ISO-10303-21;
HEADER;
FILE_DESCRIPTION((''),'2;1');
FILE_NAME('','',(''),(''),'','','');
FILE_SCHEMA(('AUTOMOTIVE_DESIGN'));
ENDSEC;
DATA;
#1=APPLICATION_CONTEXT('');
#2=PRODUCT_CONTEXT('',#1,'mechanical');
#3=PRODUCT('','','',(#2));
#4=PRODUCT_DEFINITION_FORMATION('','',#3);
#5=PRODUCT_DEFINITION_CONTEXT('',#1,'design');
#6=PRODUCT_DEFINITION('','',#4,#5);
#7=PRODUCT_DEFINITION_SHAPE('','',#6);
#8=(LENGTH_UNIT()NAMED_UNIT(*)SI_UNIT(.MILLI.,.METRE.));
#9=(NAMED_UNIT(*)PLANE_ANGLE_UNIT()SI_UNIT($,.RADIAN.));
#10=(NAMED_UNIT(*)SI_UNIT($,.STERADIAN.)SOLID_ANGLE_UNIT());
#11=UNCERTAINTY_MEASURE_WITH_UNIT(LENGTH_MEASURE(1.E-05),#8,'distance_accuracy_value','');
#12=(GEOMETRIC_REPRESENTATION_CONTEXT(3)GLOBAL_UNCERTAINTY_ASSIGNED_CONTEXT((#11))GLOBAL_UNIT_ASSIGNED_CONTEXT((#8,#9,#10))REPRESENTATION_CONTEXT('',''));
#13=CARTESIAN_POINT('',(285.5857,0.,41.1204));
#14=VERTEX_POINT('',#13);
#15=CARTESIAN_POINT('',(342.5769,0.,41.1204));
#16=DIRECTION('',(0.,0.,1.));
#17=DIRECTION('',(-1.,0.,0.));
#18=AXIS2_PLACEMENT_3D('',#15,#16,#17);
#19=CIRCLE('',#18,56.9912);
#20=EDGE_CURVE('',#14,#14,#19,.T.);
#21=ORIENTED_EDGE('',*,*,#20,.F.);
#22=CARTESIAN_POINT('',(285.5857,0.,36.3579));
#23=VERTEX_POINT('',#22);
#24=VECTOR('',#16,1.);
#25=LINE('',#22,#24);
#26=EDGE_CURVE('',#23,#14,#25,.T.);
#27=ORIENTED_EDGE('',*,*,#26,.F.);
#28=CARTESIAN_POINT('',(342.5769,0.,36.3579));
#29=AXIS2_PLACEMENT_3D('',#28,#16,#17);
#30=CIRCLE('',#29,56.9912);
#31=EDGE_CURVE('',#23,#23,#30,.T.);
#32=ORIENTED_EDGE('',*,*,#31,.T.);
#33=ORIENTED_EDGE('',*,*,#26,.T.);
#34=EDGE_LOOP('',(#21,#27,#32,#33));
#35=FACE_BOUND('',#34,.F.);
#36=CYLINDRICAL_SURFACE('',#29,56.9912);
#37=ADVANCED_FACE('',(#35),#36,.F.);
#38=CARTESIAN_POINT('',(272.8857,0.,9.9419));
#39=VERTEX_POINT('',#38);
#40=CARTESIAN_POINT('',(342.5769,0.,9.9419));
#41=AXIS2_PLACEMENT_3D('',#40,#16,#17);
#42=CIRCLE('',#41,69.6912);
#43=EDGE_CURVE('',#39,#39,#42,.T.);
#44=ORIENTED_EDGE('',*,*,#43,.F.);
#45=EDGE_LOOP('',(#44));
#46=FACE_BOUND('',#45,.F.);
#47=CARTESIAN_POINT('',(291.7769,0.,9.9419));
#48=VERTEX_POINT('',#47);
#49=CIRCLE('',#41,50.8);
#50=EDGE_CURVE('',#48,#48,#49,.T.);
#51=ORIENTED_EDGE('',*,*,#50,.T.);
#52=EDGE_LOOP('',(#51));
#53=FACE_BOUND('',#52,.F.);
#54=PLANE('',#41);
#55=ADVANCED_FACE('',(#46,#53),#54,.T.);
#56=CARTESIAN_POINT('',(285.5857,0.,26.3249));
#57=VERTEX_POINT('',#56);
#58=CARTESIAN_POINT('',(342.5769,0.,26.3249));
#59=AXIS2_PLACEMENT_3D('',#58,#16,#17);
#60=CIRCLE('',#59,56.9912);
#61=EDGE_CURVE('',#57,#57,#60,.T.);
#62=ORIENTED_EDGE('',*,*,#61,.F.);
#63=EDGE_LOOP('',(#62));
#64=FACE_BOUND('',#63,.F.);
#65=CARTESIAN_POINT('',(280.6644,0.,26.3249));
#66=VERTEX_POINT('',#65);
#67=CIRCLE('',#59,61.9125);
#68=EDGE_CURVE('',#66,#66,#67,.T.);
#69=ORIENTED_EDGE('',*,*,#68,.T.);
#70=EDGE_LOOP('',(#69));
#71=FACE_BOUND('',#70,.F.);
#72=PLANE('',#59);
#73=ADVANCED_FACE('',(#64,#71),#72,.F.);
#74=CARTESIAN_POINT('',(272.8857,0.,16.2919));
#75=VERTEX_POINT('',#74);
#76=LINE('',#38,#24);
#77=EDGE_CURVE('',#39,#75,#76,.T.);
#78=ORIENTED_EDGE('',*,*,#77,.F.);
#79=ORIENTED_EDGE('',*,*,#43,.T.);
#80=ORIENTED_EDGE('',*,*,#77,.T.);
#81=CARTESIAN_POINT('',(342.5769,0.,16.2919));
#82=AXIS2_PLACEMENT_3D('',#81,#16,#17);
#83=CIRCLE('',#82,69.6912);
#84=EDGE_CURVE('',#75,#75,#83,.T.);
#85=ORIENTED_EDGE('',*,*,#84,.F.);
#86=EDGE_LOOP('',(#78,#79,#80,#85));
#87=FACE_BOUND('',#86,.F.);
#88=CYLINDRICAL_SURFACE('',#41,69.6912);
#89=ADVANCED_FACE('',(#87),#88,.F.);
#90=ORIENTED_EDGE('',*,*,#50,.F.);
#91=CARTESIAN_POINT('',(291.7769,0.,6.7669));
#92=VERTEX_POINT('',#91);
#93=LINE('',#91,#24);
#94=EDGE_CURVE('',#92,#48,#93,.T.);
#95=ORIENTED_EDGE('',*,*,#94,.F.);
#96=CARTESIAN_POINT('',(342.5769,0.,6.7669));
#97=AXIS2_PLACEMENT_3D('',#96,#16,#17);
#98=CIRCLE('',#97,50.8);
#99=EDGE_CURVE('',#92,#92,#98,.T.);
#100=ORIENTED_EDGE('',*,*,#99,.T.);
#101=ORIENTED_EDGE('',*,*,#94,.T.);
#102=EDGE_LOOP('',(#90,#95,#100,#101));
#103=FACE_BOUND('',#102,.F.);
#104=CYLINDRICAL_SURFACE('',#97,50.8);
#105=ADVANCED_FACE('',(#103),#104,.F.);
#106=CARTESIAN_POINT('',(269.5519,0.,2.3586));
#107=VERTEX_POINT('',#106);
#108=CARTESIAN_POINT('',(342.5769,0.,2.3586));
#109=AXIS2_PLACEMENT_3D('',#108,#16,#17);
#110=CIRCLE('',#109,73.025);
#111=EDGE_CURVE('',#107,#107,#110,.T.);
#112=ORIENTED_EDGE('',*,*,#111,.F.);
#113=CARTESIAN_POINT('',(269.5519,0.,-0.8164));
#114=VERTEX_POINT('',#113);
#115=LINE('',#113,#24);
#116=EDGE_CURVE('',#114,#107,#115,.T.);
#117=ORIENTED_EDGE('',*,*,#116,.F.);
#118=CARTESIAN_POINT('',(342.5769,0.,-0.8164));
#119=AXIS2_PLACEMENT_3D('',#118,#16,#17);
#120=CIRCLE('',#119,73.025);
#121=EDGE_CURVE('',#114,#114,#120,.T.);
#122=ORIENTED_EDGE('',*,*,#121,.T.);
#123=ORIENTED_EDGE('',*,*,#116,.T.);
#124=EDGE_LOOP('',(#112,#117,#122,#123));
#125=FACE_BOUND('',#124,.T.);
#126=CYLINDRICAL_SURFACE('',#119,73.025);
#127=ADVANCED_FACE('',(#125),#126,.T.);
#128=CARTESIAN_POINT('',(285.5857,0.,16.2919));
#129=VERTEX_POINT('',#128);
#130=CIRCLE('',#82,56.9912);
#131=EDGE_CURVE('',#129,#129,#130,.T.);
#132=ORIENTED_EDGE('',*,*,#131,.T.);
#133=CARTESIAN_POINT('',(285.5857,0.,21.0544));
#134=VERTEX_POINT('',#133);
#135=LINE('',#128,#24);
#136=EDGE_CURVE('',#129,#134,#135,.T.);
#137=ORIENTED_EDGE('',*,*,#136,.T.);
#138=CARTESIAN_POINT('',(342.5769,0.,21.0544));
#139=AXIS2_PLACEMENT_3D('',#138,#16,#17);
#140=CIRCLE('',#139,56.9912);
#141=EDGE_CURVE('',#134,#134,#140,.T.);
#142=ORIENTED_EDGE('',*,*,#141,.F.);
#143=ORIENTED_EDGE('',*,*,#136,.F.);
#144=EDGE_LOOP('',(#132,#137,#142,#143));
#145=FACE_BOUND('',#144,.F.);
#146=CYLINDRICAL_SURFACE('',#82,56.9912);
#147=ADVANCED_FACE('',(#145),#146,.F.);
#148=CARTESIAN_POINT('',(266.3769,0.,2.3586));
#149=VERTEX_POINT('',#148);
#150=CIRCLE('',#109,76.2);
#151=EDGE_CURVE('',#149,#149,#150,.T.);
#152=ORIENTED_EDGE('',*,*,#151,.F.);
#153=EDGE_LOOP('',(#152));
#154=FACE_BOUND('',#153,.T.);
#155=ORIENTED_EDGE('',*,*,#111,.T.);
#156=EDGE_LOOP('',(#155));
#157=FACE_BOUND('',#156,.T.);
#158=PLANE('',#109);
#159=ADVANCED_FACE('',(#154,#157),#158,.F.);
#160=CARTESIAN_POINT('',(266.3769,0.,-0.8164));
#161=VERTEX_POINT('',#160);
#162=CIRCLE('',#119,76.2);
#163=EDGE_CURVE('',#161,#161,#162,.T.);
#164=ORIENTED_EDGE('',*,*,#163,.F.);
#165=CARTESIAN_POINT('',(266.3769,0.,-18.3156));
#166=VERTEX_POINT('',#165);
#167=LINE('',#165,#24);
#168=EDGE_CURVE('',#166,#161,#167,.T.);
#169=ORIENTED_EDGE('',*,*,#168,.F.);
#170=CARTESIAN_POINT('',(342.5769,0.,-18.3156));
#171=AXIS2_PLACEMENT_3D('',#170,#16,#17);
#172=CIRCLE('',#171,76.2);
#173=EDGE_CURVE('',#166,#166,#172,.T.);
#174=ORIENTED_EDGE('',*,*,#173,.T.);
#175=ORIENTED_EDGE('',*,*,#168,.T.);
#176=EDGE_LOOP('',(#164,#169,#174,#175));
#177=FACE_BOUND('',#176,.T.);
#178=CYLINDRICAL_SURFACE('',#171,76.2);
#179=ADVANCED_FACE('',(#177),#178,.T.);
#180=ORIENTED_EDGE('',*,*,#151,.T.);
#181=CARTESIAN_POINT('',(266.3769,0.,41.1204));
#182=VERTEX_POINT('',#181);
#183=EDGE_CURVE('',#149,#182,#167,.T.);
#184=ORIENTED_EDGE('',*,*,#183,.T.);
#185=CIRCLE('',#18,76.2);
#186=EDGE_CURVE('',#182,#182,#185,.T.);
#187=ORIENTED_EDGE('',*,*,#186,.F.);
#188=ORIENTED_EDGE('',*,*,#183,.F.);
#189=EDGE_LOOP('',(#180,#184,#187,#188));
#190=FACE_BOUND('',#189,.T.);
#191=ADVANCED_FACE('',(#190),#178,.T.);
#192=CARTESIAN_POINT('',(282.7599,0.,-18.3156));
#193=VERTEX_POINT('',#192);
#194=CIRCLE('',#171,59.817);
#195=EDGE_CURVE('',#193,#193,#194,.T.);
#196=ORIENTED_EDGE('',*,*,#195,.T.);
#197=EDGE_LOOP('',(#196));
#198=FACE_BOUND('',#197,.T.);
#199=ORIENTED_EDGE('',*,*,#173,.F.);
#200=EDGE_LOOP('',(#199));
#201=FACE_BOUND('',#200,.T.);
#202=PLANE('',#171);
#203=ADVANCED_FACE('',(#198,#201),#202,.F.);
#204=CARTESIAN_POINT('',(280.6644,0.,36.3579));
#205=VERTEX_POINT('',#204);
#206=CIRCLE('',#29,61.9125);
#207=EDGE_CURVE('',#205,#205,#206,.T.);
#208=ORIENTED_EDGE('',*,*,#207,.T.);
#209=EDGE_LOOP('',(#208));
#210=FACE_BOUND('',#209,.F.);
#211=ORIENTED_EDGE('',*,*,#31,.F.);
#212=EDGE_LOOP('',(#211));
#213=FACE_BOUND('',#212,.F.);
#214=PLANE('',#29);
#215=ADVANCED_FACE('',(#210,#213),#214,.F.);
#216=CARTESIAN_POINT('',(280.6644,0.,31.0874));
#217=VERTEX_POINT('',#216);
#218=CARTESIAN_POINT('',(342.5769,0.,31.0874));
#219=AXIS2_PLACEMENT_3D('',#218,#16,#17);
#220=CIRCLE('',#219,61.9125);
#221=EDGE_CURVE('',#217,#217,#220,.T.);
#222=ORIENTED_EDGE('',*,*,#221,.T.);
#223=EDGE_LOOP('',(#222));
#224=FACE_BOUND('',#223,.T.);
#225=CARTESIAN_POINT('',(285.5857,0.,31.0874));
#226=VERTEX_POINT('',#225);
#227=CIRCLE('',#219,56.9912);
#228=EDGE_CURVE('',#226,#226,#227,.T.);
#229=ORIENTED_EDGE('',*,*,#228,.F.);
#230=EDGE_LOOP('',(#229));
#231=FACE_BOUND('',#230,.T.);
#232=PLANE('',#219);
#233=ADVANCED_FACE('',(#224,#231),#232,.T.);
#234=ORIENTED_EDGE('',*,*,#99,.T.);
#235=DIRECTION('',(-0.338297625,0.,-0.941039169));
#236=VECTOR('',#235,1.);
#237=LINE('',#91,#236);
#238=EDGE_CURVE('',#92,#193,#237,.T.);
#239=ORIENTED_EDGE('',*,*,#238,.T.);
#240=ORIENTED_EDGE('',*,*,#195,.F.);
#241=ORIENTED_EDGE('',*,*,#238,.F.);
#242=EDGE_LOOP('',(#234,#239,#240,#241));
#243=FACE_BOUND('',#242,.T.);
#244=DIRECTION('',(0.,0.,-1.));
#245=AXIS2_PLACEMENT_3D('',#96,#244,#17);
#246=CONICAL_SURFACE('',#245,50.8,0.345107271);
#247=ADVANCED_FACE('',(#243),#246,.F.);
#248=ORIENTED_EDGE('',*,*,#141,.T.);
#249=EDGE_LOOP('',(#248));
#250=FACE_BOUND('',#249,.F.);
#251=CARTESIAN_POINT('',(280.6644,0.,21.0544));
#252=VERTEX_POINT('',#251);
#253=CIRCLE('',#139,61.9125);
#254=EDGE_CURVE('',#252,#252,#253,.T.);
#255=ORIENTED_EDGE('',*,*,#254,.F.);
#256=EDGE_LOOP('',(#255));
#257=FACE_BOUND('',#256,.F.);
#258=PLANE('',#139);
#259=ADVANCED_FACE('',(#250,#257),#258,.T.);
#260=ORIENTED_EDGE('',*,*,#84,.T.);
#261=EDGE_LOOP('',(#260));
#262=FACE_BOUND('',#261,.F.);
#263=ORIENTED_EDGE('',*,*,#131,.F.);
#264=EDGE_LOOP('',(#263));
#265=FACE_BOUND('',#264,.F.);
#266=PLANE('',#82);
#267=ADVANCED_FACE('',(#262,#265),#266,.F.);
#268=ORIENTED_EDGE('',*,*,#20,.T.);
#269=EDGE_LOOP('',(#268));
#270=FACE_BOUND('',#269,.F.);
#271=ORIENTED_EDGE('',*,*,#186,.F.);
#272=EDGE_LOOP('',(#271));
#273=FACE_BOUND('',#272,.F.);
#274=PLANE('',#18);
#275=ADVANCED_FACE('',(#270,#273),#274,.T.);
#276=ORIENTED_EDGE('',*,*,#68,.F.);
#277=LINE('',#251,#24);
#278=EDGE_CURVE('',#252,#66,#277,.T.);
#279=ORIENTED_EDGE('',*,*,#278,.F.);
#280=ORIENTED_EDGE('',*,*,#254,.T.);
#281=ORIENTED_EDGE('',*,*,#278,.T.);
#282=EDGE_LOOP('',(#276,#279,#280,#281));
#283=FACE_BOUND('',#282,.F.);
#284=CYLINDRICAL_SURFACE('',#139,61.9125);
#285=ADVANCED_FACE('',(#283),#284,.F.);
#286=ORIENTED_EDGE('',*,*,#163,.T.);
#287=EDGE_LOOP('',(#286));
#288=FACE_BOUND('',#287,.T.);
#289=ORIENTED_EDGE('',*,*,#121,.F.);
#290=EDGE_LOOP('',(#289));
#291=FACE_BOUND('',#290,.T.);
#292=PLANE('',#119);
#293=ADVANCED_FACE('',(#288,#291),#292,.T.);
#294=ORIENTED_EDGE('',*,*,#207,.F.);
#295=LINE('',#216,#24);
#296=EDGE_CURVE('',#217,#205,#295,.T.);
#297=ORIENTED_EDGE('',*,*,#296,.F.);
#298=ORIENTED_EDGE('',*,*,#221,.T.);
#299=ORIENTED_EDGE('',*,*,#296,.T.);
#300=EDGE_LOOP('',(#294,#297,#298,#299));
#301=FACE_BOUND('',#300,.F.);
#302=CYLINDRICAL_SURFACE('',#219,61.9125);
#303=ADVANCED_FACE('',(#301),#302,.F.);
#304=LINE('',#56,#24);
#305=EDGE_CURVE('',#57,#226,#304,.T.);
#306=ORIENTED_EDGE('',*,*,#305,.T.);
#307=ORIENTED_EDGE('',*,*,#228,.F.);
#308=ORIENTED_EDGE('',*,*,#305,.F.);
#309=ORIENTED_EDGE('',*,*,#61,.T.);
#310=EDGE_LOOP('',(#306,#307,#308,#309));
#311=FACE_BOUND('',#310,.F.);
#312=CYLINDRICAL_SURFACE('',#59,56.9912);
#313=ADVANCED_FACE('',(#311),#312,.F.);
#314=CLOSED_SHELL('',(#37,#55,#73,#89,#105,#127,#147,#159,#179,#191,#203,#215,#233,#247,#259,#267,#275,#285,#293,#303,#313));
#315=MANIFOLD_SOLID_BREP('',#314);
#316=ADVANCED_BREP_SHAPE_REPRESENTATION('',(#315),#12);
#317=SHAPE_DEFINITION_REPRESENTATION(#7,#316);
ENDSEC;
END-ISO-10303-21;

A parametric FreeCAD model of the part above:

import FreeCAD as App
import Part
import Sketcher

V = App.Vector
Q = App.Units.Quantity

doc = App.newDocument("Part")
body = doc.addObject("PartDesign::Body", "Body")

sketch1 = body.newObject("Sketcher::SketchObject", "Sketch")
sketch1.AttachmentSupport = (doc.getObject("XZ_Plane"), [""])
sketch1.MapMode = "FlatFace"
sketch1.addGeometry([
    Part.LineSegment(V(285.6, 16.3, 0), V(272.9, 16.3, 0)),
    Part.LineSegment(V(272.9, 16.3, 0), V(272.9, 9.9, 0)),
    Part.LineSegment(V(272.9, 9.9, 0), V(291.8, 9.9, 0)),
    Part.LineSegment(V(291.8, 9.9, 0), V(291.8, 6.8, 0)),
    Part.LineSegment(V(291.8, 6.8, 0), V(282.8, -18.3, 0)),
    Part.LineSegment(V(282.8, -18.3, 0), V(266.4, -18.3, 0)),
    Part.LineSegment(V(266.4, -18.3, 0), V(266.4, -0.8, 0)),
    Part.LineSegment(V(266.4, -0.8, 0), V(269.6, -0.8, 0)),
    Part.LineSegment(V(269.6, -0.8, 0), V(269.6, 2.4, 0)),
    Part.LineSegment(V(269.6, 2.4, 0), V(266.4, 2.4, 0)),
    Part.LineSegment(V(266.4, 2.4, 0), V(266.4, 41.1, 0)),
    Part.LineSegment(V(266.4, 41.1, 0), V(285.6, 41.1, 0)),
    Part.LineSegment(V(285.6, 41.1, 0), V(285.6, 36.4, 0)),
    Part.LineSegment(V(285.6, 36.4, 0), V(280.7, 36.4, 0)),
    Part.LineSegment(V(280.7, 36.4, 0), V(280.7, 31.1, 0)),
    Part.LineSegment(V(280.7, 31.1, 0), V(285.6, 31.1, 0)),
    Part.LineSegment(V(285.6, 31.1, 0), V(285.6, 26.3, 0)),
    Part.LineSegment(V(285.6, 26.3, 0), V(280.7, 26.3, 0)),
    Part.LineSegment(V(280.7, 26.3, 0), V(280.7, 21.1, 0)),
    Part.LineSegment(V(280.7, 21.1, 0), V(285.6, 21.1, 0)),
    Part.LineSegment(V(285.6, 21.1, 0), V(285.6, 16.3, 0)),
], False)
sketch1.addGeometry(Part.LineSegment(V(342.6, -18.3, 0), V(342.6, 41.1, 0)), True)
sketch1.addConstraint([
    Sketcher.Constraint("Coincident", 0, 2, 1, 1),
    Sketcher.Constraint("Coincident", 1, 2, 2, 1),
    Sketcher.Constraint("Coincident", 2, 2, 3, 1),
    Sketcher.Constraint("Coincident", 3, 2, 4, 1),
    Sketcher.Constraint("Coincident", 4, 2, 5, 1),
    Sketcher.Constraint("Coincident", 5, 2, 6, 1),
    Sketcher.Constraint("Coincident", 6, 2, 7, 1),
    Sketcher.Constraint("Coincident", 7, 2, 8, 1),
    Sketcher.Constraint("Coincident", 8, 2, 9, 1),
    Sketcher.Constraint("Coincident", 9, 2, 10, 1),
    Sketcher.Constraint("Coincident", 10, 2, 11, 1),
    Sketcher.Constraint("Coincident", 11, 2, 12, 1),
    Sketcher.Constraint("Coincident", 12, 2, 13, 1),
    Sketcher.Constraint("Coincident", 13, 2, 14, 1),
    Sketcher.Constraint("Coincident", 14, 2, 15, 1),
    Sketcher.Constraint("Coincident", 15, 2, 16, 1),
    Sketcher.Constraint("Coincident", 16, 2, 17, 1),
    Sketcher.Constraint("Coincident", 17, 2, 18, 1),
    Sketcher.Constraint("Coincident", 18, 2, 19, 1),
    Sketcher.Constraint("Coincident", 19, 2, 20, 1),
    Sketcher.Constraint("Coincident", 20, 2, 0, 1),
    Sketcher.Constraint("Horizontal", 0),
    Sketcher.Constraint("Vertical", 1),
    Sketcher.Constraint("Horizontal", 2),
    Sketcher.Constraint("Vertical", 3),
    Sketcher.Constraint("Horizontal", 5),
    Sketcher.Constraint("Vertical", 6),
    Sketcher.Constraint("Horizontal", 7),
    Sketcher.Constraint("Vertical", 8),
    Sketcher.Constraint("Horizontal", 9),
    Sketcher.Constraint("Vertical", 10),
    Sketcher.Constraint("Horizontal", 11),
    Sketcher.Constraint("Vertical", 12),
    Sketcher.Constraint("Horizontal", 13),
    Sketcher.Constraint("Vertical", 14),
    Sketcher.Constraint("Horizontal", 15),
    Sketcher.Constraint("Vertical", 16),
    Sketcher.Constraint("Horizontal", 17),
    Sketcher.Constraint("Vertical", 18),
    Sketcher.Constraint("Horizontal", 19),
    Sketcher.Constraint("Vertical", 20),
    Sketcher.Constraint("Vertical", 21),
    Sketcher.Constraint("Horizontal", 5, 2, 21, 1),
    Sketcher.Constraint("Horizontal", 11, 2, 21, 2),
    Sketcher.Constraint("Vertical", 6, 2, 9, 2),
    Sketcher.Constraint("Vertical", 12, 2, 15, 2),
    Sketcher.Constraint("Vertical", 14, 2, 17, 2),
    Sketcher.Constraint("Vertical", 16, 2, 19, 2),
    Sketcher.Constraint("Equal", 9, 3),
    Sketcher.Constraint("Equal", 3, 8),
    Sketcher.Constraint("Equal", 12, 16),
    Sketcher.Constraint("Equal", 14, 18),
    Sketcher.Constraint("Equal", 16, 20),
    Sketcher.Constraint("DistanceX", 0, 2, 0, 1, Q("0.5 in")),
    Sketcher.Constraint("DistanceX", 3, 2, 21, 1, Q("2 in")),
    Sketcher.Constraint("DistanceY", 1, 2, 1, 1, Q("0.25 in")),
    Sketcher.Constraint("DistanceX", 7, 1, 7, 2, Q("0.125 in")),
    Sketcher.Constraint("DistanceY", 12, 2, 12, 1, Q("0.1875 in")),
    Sketcher.Constraint("DistanceX", 4, 2, 3, 2, Q("0.355 in")),
    Sketcher.Constraint("DistanceX", 5, 2, 3, 2, Q("1 in")),
    Sketcher.Constraint("DistanceY", 6, 1, 6, 2, Q("17.4992 mm")),
    Sketcher.Constraint("DistanceY", 21, 1, 21, 2, Q("2.34 in")),
    Sketcher.Constraint("DistanceY", 4, 2, 2, 2, Q("1.1125 in")),
    Sketcher.Constraint("DistanceX", 20, 2, 21, 1, Q("56.9912 mm")),
    Sketcher.Constraint("DistanceX", 10, 2, 13, 2, Q("0.5625 in")),
    Sketcher.Constraint("DistanceX", -1, 1, 0, 2, Q("272.8857 mm")),
    Sketcher.Constraint("DistanceY", -1, 1, 0, 2, Q("16.292 mm")),
])
revolution = body.newObject("PartDesign::Revolution", "Revolution")
revolution.Profile = sketch1
revolution.ReferenceAxis = (sketch1, ["Axis0"])
revolution.Angle = 360

doc.recompute()
